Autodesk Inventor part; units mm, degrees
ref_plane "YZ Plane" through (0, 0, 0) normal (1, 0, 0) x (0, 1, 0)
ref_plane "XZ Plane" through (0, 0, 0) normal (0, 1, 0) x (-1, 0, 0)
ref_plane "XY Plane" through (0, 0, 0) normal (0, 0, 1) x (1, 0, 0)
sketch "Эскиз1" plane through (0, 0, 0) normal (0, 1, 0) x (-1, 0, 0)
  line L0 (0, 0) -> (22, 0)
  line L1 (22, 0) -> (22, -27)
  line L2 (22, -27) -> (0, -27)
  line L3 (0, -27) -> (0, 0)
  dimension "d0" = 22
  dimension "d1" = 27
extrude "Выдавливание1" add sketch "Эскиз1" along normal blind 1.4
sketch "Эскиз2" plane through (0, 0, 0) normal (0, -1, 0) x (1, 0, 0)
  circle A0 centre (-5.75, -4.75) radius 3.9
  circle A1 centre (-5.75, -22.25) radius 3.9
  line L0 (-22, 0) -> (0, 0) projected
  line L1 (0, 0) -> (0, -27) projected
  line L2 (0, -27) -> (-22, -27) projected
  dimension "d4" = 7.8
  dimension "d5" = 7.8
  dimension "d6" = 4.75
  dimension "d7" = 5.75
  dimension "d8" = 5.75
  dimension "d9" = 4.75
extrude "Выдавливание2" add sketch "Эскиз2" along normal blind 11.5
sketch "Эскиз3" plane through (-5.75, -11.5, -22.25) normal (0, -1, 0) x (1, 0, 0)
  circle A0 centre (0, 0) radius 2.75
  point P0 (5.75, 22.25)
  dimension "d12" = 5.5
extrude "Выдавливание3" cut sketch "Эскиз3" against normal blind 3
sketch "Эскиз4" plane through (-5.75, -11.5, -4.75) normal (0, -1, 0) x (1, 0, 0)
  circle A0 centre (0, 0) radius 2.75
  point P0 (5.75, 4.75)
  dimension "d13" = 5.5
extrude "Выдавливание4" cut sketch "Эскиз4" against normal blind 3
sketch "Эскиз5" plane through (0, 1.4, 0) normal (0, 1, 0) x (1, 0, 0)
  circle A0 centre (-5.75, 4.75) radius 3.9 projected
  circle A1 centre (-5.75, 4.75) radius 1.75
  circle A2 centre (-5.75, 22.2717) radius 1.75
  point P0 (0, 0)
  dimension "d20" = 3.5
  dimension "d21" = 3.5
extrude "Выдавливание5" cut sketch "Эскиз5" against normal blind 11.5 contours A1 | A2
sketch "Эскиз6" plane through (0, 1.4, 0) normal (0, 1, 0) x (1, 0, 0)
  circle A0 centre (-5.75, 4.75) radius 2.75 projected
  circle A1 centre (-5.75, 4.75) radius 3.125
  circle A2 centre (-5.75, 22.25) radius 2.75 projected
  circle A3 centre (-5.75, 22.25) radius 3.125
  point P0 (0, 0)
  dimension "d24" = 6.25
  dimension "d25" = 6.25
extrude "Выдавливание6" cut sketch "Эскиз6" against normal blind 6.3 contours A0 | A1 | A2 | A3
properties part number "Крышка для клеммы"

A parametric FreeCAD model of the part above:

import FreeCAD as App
import Part
import Sketcher
from FreeCAD import Vector
Q = App.Units.Quantity

doc = App.newDocument("Part")
body = doc.addObject("PartDesign::Body", "Body")

# Sketch on XZ plane
sketch1 = body.newObject("Sketcher::SketchObject", "Sketch")
sketch1.AttachmentSupport = (doc.getObject("XZ_Plane"), [""])
sketch1.MapMode = "FlatFace"
sketch1.addGeometry([
    Part.LineSegment(Vector(-22, 0, 0), Vector(0, 0, 0)),
    Part.LineSegment(Vector(0, 0, 0), Vector(0, -27, 0)),
    Part.LineSegment(Vector(0, -27, 0), Vector(-22, -27, 0)),
    Part.LineSegment(Vector(-22, -27, 0), Vector(-22, 0, 0)),
], False)
sketch1.addConstraint([
    Sketcher.Constraint("Coincident", 0, 2, 1, 1),
    Sketcher.Constraint("Coincident", 1, 2, 2, 1),
    Sketcher.Constraint("Coincident", 2, 2, 3, 1),
    Sketcher.Constraint("Coincident", 3, 2, 0, 1),
    Sketcher.Constraint("Horizontal", 0),
    Sketcher.Constraint("Vertical", 1),
    Sketcher.Constraint("Horizontal", 2),
    Sketcher.Constraint("Vertical", 3),
    Sketcher.Constraint("Coincident", 0, 2, -1, 1),
    Sketcher.Constraint("DistanceX", 0, 1, 0, 2, Q("22 mm")),
    Sketcher.Constraint("DistanceY", 1, 2, 1, 1, Q("27 mm")),
])
pad1 = body.newObject("PartDesign::Pad", "Pad")
pad1.Profile = sketch1
pad1.Length = 1.4
pad1.Reversed = True

# Sketch on XZ plane
sketch2 = body.newObject("Sketcher::SketchObject", "Sketch001")
sketch2.AttachmentSupport = (doc.getObject("XZ_Plane"), [""])
sketch2.MapMode = "FlatFace"
sketch2.addGeometry([
    Part.Circle(Vector(-5.75, -4.75, 0), Vector(0, 0, 1), 3.9),
    Part.Circle(Vector(-5.75, -22.25, 0), Vector(0, 0, 1), 3.9),
], False)
sketch2.addConstraint([
    Sketcher.Constraint("Equal", 0, 1),
    Sketcher.Constraint("Vertical", 0, 3, 1, 3),
    Sketcher.Constraint("Diameter", 0, Q("7.8 mm")),
    Sketcher.Constraint("DistanceX", 0, 3, -1, 1, Q("5.75 mm")),
    Sketcher.Constraint("DistanceY", 0, 3, -1, 1, Q("4.75 mm")),
    Sketcher.Constraint("DistanceY", 1, 3, 0, 3, Q("17.5 mm")),
])
pad2 = body.newObject("PartDesign::Pad", "Pad001")
pad2.Profile = sketch2
pad2.Length = 11.5

# Sketch on XZ plane
sketch3 = body.newObject("Sketcher::SketchObject", "Sketch002")
sketch3.AttachmentSupport = (doc.getObject("XZ_Plane"), [""])
sketch3.MapMode = "FlatFace"
sketch3.AttachmentOffset = App.Placement(Vector(0, 0, 11.5), App.Rotation())
sketch3.addGeometry(Part.Circle(Vector(-5.75, -22.25, 0), Vector(0, 0, 1), 2.75), False)
sketch3.addConstraint([
    Sketcher.Constraint("Diameter", 0, Q("5.5 mm")),
    Sketcher.Constraint("DistanceX", 0, 3, -1, 1, Q("5.75 mm")),
    Sketcher.Constraint("DistanceY", 0, 3, -1, 1, Q("22.25 mm")),
])
pocket1 = body.newObject("PartDesign::Pocket", "Pocket")
pocket1.Profile = sketch3
pocket1.Length = 3

# Sketch on XZ plane
sketch4 = body.newObject("Sketcher::SketchObject", "Sketch003")
sketch4.AttachmentSupport = (doc.getObject("XZ_Plane"), [""])
sketch4.MapMode = "FlatFace"
sketch4.AttachmentOffset = App.Placement(Vector(0, 0, 11.5), App.Rotation())
sketch4.addGeometry(Part.Circle(Vector(-5.75, -4.75, 0), Vector(0, 0, 1), 2.75), False)
sketch4.addConstraint([
    Sketcher.Constraint("Diameter", 0, Q("5.5 mm")),
    Sketcher.Constraint("DistanceX", 0, 3, -1, 1, Q("5.75 mm")),
    Sketcher.Constraint("DistanceY", 0, 3, -1, 1, Q("4.75 mm")),
])
pocket2 = body.newObject("PartDesign::Pocket", "Pocket001")
pocket2.Profile = sketch4
pocket2.Length = 3

# Sketch on XZ plane
sketch5 = body.newObject("Sketcher::SketchObject", "Sketch004")
sketch5.AttachmentSupport = (doc.getObject("XZ_Plane"), [""])
sketch5.MapMode = "FlatFace"
sketch5.AttachmentOffset = App.Placement(Vector(0, 0, -1.4), App.Rotation())
sketch5.addGeometry([
    Part.Circle(Vector(-5.75, -4.75, 0), Vector(0, 0, 1), 1.75),
    Part.Circle(Vector(-5.75, -22.2717, 0), Vector(0, 0, 1), 1.75),
], False)
sketch5.addConstraint([
    Sketcher.Constraint("Equal", 0, 1),
    Sketcher.Constraint("Vertical", 0, 3, 1, 3),
    Sketcher.Constraint("Diameter", 0, Q("3.5 mm")),
    Sketcher.Constraint("DistanceX", 0, 3, -1, 1, Q("5.75 mm")),
    Sketcher.Constraint("DistanceY", 0, 3, -1, 1, Q("4.75 mm")),
    Sketcher.Constraint("DistanceY", 1, 3, -1, 1, Q("22.2717 mm")),
])
pocket3 = body.newObject("PartDesign::Pocket", "Pocket002")
pocket3.Profile = sketch5
pocket3.Length = 11.5
pocket3.Reversed = True

# Sketch on XZ plane
sketch6 = body.newObject("Sketcher::SketchObject", "Sketch005")
sketch6.AttachmentSupport = (doc.getObject("XZ_Plane"), [""])
sketch6.MapMode = "FlatFace"
sketch6.AttachmentOffset = App.Placement(Vector(0, 0, -1.4), App.Rotation())
sketch6.addGeometry([
    Part.Circle(Vector(-5.75, -4.75, 0), Vector(0, 0, 1), 3.125),
    Part.Circle(Vector(-5.75, -22.25, 0), Vector(0, 0, 1), 3.125),
], False)
sketch6.addConstraint([
    Sketcher.Constraint("Equal", 0, 1),
    Sketcher.Constraint("Vertical", 0, 3, 1, 3),
    Sketcher.Constraint("Diameter", 0, Q("6.25 mm")),
    Sketcher.Constraint("DistanceY", 1, 3, 0, 3, Q("17.5 mm")),
    Sketcher.Constraint("DistanceX", 0, 3, -1, 1, Q("5.75 mm")),
    Sketcher.Constraint("DistanceY", 0, 3, -1, 1, Q("4.75 mm")),
])
pocket4 = body.newObject("PartDesign::Pocket", "Pocket003")
pocket4.Profile = sketch6
pocket4.Length = 6.3
pocket4.Reversed = True

doc.recompute()
